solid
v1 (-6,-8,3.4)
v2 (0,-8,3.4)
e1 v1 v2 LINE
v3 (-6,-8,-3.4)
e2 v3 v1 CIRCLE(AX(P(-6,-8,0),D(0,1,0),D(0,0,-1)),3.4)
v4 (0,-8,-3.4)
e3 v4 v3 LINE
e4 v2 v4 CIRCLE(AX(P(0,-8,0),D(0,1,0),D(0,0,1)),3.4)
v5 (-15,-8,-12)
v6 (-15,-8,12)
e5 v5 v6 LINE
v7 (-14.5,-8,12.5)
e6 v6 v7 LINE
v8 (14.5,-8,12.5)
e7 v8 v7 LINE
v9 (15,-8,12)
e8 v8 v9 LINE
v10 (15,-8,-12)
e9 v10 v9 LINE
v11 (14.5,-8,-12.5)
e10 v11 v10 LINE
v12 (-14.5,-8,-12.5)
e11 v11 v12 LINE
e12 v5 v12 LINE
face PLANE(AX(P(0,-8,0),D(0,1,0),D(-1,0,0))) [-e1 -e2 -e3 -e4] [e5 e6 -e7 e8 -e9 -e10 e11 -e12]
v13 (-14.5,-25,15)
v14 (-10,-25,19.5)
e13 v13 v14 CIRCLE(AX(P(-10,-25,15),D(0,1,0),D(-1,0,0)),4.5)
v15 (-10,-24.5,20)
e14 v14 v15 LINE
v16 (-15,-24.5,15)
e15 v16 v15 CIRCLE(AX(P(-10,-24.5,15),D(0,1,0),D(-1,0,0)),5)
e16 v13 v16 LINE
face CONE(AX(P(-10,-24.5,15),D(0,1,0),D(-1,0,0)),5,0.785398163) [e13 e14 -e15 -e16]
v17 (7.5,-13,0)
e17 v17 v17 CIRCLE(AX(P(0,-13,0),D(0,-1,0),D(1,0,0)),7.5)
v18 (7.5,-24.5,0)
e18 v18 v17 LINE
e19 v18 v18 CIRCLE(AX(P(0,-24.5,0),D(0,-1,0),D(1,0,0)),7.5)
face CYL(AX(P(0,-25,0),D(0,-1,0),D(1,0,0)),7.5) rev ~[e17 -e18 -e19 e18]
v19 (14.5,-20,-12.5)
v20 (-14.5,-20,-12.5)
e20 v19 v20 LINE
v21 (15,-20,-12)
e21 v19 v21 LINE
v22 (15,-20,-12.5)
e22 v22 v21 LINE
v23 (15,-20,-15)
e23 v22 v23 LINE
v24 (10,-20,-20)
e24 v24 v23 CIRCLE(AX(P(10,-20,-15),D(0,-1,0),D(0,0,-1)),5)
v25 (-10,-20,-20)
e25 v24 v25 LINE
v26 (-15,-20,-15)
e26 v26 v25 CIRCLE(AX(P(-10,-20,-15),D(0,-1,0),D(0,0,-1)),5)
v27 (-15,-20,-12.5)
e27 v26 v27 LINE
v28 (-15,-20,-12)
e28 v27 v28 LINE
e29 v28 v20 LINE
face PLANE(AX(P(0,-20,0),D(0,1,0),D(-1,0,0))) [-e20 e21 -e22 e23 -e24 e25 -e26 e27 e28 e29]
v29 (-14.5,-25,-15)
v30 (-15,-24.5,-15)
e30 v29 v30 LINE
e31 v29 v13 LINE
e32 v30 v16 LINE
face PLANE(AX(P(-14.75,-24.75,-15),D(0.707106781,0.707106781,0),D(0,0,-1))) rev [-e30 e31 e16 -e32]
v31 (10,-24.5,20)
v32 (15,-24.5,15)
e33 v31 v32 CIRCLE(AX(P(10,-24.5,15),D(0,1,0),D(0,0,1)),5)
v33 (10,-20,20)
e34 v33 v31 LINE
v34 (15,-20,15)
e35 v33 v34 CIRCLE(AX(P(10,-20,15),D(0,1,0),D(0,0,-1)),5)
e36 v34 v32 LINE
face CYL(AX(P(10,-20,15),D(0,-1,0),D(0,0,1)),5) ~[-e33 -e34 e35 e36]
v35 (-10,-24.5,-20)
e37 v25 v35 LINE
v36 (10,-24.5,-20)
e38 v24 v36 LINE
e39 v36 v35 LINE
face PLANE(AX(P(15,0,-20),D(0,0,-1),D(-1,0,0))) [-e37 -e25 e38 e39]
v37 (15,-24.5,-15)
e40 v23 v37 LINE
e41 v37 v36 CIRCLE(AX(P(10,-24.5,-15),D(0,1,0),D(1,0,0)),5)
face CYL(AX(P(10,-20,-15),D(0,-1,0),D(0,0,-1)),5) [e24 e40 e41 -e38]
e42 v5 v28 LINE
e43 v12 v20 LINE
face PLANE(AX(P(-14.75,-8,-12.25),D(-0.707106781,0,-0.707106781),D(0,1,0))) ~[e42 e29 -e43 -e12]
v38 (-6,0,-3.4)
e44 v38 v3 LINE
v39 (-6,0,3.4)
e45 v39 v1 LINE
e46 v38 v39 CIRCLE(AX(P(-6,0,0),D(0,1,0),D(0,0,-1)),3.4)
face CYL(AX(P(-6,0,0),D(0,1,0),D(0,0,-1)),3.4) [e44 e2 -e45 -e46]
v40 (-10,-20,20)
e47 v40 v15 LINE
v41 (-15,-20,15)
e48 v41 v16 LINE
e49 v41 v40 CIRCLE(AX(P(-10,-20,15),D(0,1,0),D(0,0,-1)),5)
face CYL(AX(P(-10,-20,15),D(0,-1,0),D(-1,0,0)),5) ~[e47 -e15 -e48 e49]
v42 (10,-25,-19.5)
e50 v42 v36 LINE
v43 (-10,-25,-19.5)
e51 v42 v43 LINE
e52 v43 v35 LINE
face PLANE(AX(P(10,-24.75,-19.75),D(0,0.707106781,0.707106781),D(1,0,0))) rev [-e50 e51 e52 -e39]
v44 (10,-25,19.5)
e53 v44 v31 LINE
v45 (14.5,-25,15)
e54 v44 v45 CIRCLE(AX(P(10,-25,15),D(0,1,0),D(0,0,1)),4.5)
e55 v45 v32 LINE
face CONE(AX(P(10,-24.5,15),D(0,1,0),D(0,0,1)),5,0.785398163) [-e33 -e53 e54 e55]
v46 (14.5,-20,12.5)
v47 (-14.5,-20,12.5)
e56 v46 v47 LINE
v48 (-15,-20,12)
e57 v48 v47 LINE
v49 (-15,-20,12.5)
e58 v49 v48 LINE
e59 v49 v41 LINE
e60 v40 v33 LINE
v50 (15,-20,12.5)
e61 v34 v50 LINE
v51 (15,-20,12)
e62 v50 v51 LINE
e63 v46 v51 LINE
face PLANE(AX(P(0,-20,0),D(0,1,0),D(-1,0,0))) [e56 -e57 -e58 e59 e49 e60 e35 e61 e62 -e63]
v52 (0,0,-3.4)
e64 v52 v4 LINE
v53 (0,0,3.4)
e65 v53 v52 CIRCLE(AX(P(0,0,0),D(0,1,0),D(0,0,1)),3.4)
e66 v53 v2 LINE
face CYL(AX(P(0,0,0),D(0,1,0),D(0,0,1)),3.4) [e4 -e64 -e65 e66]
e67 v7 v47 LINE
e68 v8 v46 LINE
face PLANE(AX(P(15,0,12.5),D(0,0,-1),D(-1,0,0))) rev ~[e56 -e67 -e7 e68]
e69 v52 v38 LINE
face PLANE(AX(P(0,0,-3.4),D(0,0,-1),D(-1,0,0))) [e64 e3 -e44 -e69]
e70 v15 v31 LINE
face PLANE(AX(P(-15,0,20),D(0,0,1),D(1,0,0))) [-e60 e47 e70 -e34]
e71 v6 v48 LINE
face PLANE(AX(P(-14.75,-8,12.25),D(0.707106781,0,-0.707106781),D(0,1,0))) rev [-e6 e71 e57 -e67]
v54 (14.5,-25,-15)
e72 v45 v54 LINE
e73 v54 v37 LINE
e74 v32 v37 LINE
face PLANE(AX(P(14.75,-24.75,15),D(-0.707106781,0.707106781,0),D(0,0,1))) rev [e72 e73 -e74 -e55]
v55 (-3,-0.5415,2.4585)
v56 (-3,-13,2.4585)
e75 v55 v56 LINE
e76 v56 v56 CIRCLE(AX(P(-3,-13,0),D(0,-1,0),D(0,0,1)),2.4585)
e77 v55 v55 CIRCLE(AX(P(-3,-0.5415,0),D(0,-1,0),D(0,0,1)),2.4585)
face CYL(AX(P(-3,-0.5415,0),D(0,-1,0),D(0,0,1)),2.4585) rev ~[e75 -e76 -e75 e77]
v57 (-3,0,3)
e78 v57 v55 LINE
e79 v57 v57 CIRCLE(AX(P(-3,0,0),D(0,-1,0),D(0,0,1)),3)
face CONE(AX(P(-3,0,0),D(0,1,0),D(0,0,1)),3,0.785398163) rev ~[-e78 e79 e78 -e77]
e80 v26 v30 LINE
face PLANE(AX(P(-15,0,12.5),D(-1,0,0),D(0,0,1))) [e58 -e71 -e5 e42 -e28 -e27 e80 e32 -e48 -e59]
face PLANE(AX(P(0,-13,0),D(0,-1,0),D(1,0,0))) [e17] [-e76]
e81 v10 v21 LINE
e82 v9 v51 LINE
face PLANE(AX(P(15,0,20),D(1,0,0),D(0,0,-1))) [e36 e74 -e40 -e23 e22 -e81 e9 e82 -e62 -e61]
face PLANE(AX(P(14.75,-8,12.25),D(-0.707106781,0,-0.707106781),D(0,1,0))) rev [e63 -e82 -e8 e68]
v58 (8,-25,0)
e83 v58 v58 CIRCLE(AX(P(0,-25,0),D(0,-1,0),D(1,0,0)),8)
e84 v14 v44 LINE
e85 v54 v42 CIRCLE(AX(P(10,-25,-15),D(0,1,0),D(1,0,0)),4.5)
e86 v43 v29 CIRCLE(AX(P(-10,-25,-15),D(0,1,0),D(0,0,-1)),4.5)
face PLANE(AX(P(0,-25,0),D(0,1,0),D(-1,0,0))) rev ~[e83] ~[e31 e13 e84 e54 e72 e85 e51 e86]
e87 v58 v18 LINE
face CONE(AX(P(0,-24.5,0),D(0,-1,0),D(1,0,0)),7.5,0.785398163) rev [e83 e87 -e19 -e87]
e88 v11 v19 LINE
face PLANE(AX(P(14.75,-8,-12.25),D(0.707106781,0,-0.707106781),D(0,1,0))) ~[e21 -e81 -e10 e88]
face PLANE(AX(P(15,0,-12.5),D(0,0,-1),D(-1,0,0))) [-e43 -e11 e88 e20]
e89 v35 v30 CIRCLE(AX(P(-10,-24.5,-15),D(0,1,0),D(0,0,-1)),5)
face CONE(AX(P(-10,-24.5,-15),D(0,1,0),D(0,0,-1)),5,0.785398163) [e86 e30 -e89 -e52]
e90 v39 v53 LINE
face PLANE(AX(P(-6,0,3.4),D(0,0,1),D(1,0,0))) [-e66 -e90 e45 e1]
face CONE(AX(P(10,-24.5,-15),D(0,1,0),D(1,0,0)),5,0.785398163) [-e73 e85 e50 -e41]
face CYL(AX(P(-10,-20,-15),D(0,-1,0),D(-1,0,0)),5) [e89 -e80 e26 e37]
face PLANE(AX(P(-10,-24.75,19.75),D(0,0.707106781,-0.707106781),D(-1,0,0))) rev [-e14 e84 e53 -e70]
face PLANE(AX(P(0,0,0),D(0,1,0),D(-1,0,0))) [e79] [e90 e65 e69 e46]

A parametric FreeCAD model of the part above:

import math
import FreeCAD as App
import Part
import Sketcher
from FreeCAD import Vector
Q = App.Units.Quantity


def edges_at(feature, points):
    """Names of the edges that pass closest to the given points."""
    edges = feature.Shape.Edges
    near = lambda p: min(range(len(edges)), key=lambda i: edges[i].distToShape(Part.Vertex(*p))[0])
    return sorted({f"Edge{near(p) + 1}" for p in points})

doc = App.newDocument("Part")
body = doc.addObject("PartDesign::Body", "Body")

# Sketch on XZ plane
sketch1 = body.newObject("Sketcher::SketchObject", "Sketch")
sketch1.AttachmentSupport = (doc.getObject("XZ_Plane"), [""])
sketch1.MapMode = "FlatFace"
sketch1.addGeometry([
    Part.LineSegment(Vector(-15, 20, 0), Vector(15, 20, 0)),
    Part.LineSegment(Vector(15, 20, 0), Vector(15, -20, 0)),
    Part.LineSegment(Vector(15, -20, 0), Vector(-15, -20, 0)),
    Part.LineSegment(Vector(-15, -20, 0), Vector(-15, 20, 0)),
], False)
sketch1.addConstraint([
    Sketcher.Constraint("Coincident", 0, 2, 1, 1),
    Sketcher.Constraint("Coincident", 1, 2, 2, 1),
    Sketcher.Constraint("Coincident", 2, 2, 3, 1),
    Sketcher.Constraint("Coincident", 3, 2, 0, 1),
    Sketcher.Constraint("Horizontal", 0),
    Sketcher.Constraint("Vertical", 1),
    Sketcher.Constraint("Horizontal", 2),
    Sketcher.Constraint("Vertical", 3),
    Sketcher.Constraint("Symmetric", 0, 2, 2, 2, -1, 1),
    Sketcher.Constraint("DistanceX", 0, 1, 0, 2, Q("30 mm")),
    Sketcher.Constraint("DistanceY", 1, 2, 1, 1, Q("40 mm")),
])
pad1 = body.newObject("PartDesign::Pad", "Pad")
pad1.Profile = sketch1
pad1.Length = 25

# Sketch on XZ plane
sketch2 = body.newObject("Sketcher::SketchObject", "Sketch001")
sketch2.AttachmentSupport = (doc.getObject("XZ_Plane"), [""])
sketch2.MapMode = "FlatFace"
sketch2.addGeometry([
    Part.LineSegment(Vector(-15, 20, 0), Vector(15, 20, 0)),  # 0
    Part.LineSegment(Vector(15, 20, 0), Vector(15, -20, 0)),  # 1
    Part.LineSegment(Vector(15, -20, 0), Vector(-15, -20, 0)),  # 2
    Part.LineSegment(Vector(-15, -20, 0), Vector(-15, 20, 0)),  # 3
    Part.ArcOfCircle(Part.Circle(Vector(-6, 0, 0), Vector(0, 0, 1), 3.4), math.radians(90), math.radians(270)),  # 4
    Part.LineSegment(Vector(-6, -3.4, 0), Vector(0, -3.4, 0)),  # 5
    Part.ArcOfCircle(Part.Circle(Vector(0, 0, 0), Vector(0, 0, 1), 3.4), math.radians(-90), math.radians(90)),  # 6
    Part.LineSegment(Vector(0, 3.4, 0), Vector(-6, 3.4, 0)),  # 7
], False)
sketch2.addConstraint([
    Sketcher.Constraint("Coincident", 0, 2, 1, 1),
    Sketcher.Constraint("Coincident", 1, 2, 2, 1),
    Sketcher.Constraint("Coincident", 2, 2, 3, 1),
    Sketcher.Constraint("Coincident", 3, 2, 0, 1),
    Sketcher.Constraint("Tangent", 4, 2, 5, 1),
    Sketcher.Constraint("Tangent", 5, 2, 6, 1),
    Sketcher.Constraint("Tangent", 6, 2, 7, 1),
    Sketcher.Constraint("Tangent", 7, 2, 4, 1),
    Sketcher.Constraint("Horizontal", 0),
    Sketcher.Constraint("Vertical", 1),
    Sketcher.Constraint("Horizontal", 2),
    Sketcher.Constraint("Vertical", 3),
    Sketcher.Constraint("Horizontal", 5),
    Sketcher.Constraint("Horizontal", 7),
    Sketcher.Constraint("Coincident", 6, 3, -1, 1),
    Sketcher.Constraint("Symmetric", 0, 2, 2, 2, -1, 1),
    Sketcher.Constraint("Radius", 4, Q("3.4 mm")),
    Sketcher.Constraint("DistanceX", 0, 1, 0, 2, Q("30 mm")),
    Sketcher.Constraint("DistanceX", 5, 1, 5, 2, Q("6 mm")),
    Sketcher.Constraint("DistanceY", 1, 2, 1, 1, Q("40 mm")),
])
pocket1 = body.newObject("PartDesign::Pocket", "Pocket")
pocket1.Profile = sketch2
pocket1.Length = 8
pocket1.Reversed = True

# Sketch on XZ plane
sketch3 = body.newObject("Sketcher::SketchObject", "Sketch002")
sketch3.AttachmentSupport = (doc.getObject("XZ_Plane"), [""])
sketch3.MapMode = "FlatFace"
sketch3.AttachmentOffset = App.Placement(Vector(0, 0, 25), App.Rotation())
sketch3.addGeometry(Part.Circle(Vector(0, 0, 0), Vector(0, 0, 1), 7.5), False)
sketch3.addConstraint([
    Sketcher.Constraint("Coincident", 0, 3, -1, 1),
    Sketcher.Constraint("Diameter", 0, Q("15 mm")),
])
pocket2 = body.newObject("PartDesign::Pocket", "Pocket001")
pocket2.Profile = sketch3
pocket2.Length = 12

# Sketch on XZ plane
sketch4 = body.newObject("Sketcher::SketchObject", "Sketch003")
sketch4.AttachmentSupport = (doc.getObject("XZ_Plane"), [""])
sketch4.MapMode = "FlatFace"
sketch4.addGeometry([
    Part.LineSegment(Vector(-15, 12.5, 0), Vector(-15, 20, 0)),  # 0
    Part.LineSegment(Vector(-15, 20, 0), Vector(15, 20, 0)),  # 1
    Part.LineSegment(Vector(15, 20, 0), Vector(15, 12.5, 0)),  # 2
    Part.LineSegment(Vector(15, 12.5, 0), Vector(-15, 12.5, 0)),  # 3
    Part.LineSegment(Vector(-15, -20, 0), Vector(-15, -12.5, 0)),  # 4
    Part.LineSegment(Vector(-15, -12.5, 0), Vector(15, -12.5, 0)),  # 5
    Part.LineSegment(Vector(15, -12.5, 0), Vector(15, -20, 0)),  # 6
    Part.LineSegment(Vector(15, -20, 0), Vector(-15, -20, 0)),  # 7
], False)
sketch4.addConstraint([
    Sketcher.Constraint("Coincident", 0, 2, 1, 1),
    Sketcher.Constraint("Coincident", 1, 2, 2, 1),
    Sketcher.Constraint("Coincident", 2, 2, 3, 1),
    Sketcher.Constraint("Coincident", 3, 2, 0, 1),
    Sketcher.Constraint("Coincident", 4, 2, 5, 1),
    Sketcher.Constraint("Coincident", 5, 2, 6, 1),
    Sketcher.Constraint("Coincident", 6, 2, 7, 1),
    Sketcher.Constraint("Coincident", 7, 2, 4, 1),
    Sketcher.Constraint("Vertical", 0),
    Sketcher.Constraint("Horizontal", 1),
    Sketcher.Constraint("Vertical", 2),
    Sketcher.Constraint("Horizontal", 3),
    Sketcher.Constraint("Vertical", 4),
    Sketcher.Constraint("Horizontal", 5),
    Sketcher.Constraint("Vertical", 6),
    Sketcher.Constraint("Horizontal", 7),
    Sketcher.Constraint("Symmetric", 2, 2, 4, 2, -1, 1),
    Sketcher.Constraint("Symmetric", 0, 2, 6, 2, -1, 1),
    Sketcher.Constraint("Vertical", 3, 2, 4, 2),
    Sketcher.Constraint("DistanceX", 1, 1, 1, 2, Q("30 mm")),
    Sketcher.Constraint("DistanceY", 4, 2, 3, 2, Q("25 mm")),
    Sketcher.Constraint("DistanceY", 6, 2, 1, 2, Q("40 mm")),
])
pocket3 = body.newObject("PartDesign::Pocket", "Pocket002")
pocket3.Profile = sketch4
pocket3.Length = 20
pocket3.Reversed = True

# Sketch on XZ plane
sketch5 = body.newObject("Sketcher::SketchObject", "Sketch004")
sketch5.AttachmentSupport = (doc.getObject("XZ_Plane"), [""])
sketch5.MapMode = "FlatFace"
sketch5.addGeometry(Part.Circle(Vector(-3, 0, 0), Vector(0, 0, 1), 2.4585), False)
sketch5.addConstraint([
    Sketcher.Constraint("PointOnObject", 0, 3, -1),
    Sketcher.Constraint("Diameter", 0, Q("4.917 mm")),
    Sketcher.Constraint("DistanceX", 0, 3, -1, 1, Q("3 mm")),
])
doc.recompute()
hole = body.newObject("PartDesign::Hole", "Hole")
hole.Profile = sketch5
hole.ThreadType = "None"
hole.Diameter = 4.917
hole.DepthType = "Dimension"
hole.Depth = 13
hole.DrillPoint = "Flat"
hole.HoleCutType = "Countersink"
hole.HoleCutDiameter = 6
hole.HoleCutCountersinkAngle = 90
hole.Reversed = True
doc.recompute()

fillet = body.newObject("PartDesign::Fillet", "Fillet")
fillet.Base = (hole, edges_at(hole, [
    (-15, -22.5, 20),
    (-15, -22.5, -20),
    (15, -22.5, -20),
    (15, -22.5, 20),
]))
fillet.Radius = 5
doc.recompute()

chamfer = body.newObject("PartDesign::Chamfer", "Chamfer")
chamfer.Base = (fillet, edges_at(fillet, [
    (0, -25, 20),
    (-13.536, -25, 18.535),
    (-15, -25, 0),
    (-13.536, -25, -18.535),
    (0, -25, -20),
    (13.536, -25, -18.535),
    (15, -25, 0),
    (13.536, -25, 18.535),
    (-7.5, -25, 0),
    (-15, -14, 12.5),
    (-15, -14, -12.5),
    (15, -14, -12.5),
    (15, -14, 12.5),
]))
chamfer.Size = 0.5

doc.recompute()
